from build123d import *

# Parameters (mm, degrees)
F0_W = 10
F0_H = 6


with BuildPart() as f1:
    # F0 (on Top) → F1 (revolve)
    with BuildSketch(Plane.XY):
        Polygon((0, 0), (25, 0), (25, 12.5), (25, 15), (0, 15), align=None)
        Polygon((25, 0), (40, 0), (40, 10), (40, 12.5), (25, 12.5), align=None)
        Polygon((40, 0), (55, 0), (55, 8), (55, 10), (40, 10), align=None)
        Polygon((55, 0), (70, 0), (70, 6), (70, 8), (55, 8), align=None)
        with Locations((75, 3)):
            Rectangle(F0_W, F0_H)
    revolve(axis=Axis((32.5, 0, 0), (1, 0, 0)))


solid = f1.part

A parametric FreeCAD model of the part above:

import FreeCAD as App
import Part
import Sketcher


def add_polygon(sketch, points):
    """Adds a closed chain of lines whose ends are joined by coincident constraints."""
    first, n = sketch.GeometryCount, len(points)
    for a, b in zip(points, points[1:] + points[:1]):
        sketch.addGeometry(Part.LineSegment(App.Vector(*a, 0), App.Vector(*b, 0)), False)
    for i in range(n):
        sketch.addConstraint(Sketcher.Constraint("Coincident", first + i, 2, first + (i + 1) % n, 1))

doc = App.newDocument("Part")
body = doc.addObject("PartDesign::Body", "Body")

sketch1 = body.newObject("Sketcher::SketchObject", "Sketch")
sketch1.AttachmentSupport = (doc.getObject("XY_Plane"), [""])
sketch1.MapMode = "FlatFace"
add_polygon(sketch1, [(0, 0), (80, 0), (80, 6), (70, 6), (70, 8), (55, 8), (55, 10), (40, 10), (40, 12.5), (25, 12.5), (25, 15), (0, 15)])
sketch1.addConstraint(Sketcher.Constraint("Horizontal", 0))
sketch1.addConstraint(Sketcher.Constraint("Vertical", 1))
sketch1.addConstraint(Sketcher.Constraint("Horizontal", 2))
sketch1.addConstraint(Sketcher.Constraint("Vertical", 3))
sketch1.addConstraint(Sketcher.Constraint("Horizontal", 4))
sketch1.addConstraint(Sketcher.Constraint("Vertical", 5))
sketch1.addConstraint(Sketcher.Constraint("Horizontal", 6))
sketch1.addConstraint(Sketcher.Constraint("Vertical", 7))
sketch1.addConstraint(Sketcher.Constraint("Horizontal", 8))
sketch1.addConstraint(Sketcher.Constraint("Vertical", 9))
sketch1.addConstraint(Sketcher.Constraint("Horizontal", 10))
sketch1.addConstraint(Sketcher.Constraint("Vertical", 11))
sketch1.addConstraint(Sketcher.Constraint("Coincident", 11, 2, -1, 1))
sketch1.addConstraint(Sketcher.Constraint("Equal", 4, 6))
sketch1.addConstraint(Sketcher.Constraint("Equal", 6, 8))
sketch1.addConstraint(Sketcher.Constraint("Equal", 3, 5))
sketch1.addConstraint(Sketcher.Constraint("Equal", 7, 9))
sketch1.addConstraint(Sketcher.Constraint("Equal", 8, 11))
sketch1.addConstraint(Sketcher.Constraint("DistanceX", 0, 1, 0, 2, 80.0))
sketch1.addConstraint(Sketcher.Constraint("DistanceX", 2, 2, 2, 1, 10.0))
sketch1.addConstraint(Sketcher.Constraint("DistanceX", 4, 2, 4, 1, 15.0))
sketch1.addConstraint(Sketcher.Constraint("DistanceY", 1, 1, 1, 2, 6.0))
sketch1.addConstraint(Sketcher.Constraint("DistanceY", 3, 1, 3, 2, 2.0))
revolution = body.newObject("PartDesign::Revolution", "Revolution")
revolution.Profile = sketch1
revolution.ReferenceAxis = (sketch1, ["H_Axis"])
revolution.Angle = 360

doc.recompute()
